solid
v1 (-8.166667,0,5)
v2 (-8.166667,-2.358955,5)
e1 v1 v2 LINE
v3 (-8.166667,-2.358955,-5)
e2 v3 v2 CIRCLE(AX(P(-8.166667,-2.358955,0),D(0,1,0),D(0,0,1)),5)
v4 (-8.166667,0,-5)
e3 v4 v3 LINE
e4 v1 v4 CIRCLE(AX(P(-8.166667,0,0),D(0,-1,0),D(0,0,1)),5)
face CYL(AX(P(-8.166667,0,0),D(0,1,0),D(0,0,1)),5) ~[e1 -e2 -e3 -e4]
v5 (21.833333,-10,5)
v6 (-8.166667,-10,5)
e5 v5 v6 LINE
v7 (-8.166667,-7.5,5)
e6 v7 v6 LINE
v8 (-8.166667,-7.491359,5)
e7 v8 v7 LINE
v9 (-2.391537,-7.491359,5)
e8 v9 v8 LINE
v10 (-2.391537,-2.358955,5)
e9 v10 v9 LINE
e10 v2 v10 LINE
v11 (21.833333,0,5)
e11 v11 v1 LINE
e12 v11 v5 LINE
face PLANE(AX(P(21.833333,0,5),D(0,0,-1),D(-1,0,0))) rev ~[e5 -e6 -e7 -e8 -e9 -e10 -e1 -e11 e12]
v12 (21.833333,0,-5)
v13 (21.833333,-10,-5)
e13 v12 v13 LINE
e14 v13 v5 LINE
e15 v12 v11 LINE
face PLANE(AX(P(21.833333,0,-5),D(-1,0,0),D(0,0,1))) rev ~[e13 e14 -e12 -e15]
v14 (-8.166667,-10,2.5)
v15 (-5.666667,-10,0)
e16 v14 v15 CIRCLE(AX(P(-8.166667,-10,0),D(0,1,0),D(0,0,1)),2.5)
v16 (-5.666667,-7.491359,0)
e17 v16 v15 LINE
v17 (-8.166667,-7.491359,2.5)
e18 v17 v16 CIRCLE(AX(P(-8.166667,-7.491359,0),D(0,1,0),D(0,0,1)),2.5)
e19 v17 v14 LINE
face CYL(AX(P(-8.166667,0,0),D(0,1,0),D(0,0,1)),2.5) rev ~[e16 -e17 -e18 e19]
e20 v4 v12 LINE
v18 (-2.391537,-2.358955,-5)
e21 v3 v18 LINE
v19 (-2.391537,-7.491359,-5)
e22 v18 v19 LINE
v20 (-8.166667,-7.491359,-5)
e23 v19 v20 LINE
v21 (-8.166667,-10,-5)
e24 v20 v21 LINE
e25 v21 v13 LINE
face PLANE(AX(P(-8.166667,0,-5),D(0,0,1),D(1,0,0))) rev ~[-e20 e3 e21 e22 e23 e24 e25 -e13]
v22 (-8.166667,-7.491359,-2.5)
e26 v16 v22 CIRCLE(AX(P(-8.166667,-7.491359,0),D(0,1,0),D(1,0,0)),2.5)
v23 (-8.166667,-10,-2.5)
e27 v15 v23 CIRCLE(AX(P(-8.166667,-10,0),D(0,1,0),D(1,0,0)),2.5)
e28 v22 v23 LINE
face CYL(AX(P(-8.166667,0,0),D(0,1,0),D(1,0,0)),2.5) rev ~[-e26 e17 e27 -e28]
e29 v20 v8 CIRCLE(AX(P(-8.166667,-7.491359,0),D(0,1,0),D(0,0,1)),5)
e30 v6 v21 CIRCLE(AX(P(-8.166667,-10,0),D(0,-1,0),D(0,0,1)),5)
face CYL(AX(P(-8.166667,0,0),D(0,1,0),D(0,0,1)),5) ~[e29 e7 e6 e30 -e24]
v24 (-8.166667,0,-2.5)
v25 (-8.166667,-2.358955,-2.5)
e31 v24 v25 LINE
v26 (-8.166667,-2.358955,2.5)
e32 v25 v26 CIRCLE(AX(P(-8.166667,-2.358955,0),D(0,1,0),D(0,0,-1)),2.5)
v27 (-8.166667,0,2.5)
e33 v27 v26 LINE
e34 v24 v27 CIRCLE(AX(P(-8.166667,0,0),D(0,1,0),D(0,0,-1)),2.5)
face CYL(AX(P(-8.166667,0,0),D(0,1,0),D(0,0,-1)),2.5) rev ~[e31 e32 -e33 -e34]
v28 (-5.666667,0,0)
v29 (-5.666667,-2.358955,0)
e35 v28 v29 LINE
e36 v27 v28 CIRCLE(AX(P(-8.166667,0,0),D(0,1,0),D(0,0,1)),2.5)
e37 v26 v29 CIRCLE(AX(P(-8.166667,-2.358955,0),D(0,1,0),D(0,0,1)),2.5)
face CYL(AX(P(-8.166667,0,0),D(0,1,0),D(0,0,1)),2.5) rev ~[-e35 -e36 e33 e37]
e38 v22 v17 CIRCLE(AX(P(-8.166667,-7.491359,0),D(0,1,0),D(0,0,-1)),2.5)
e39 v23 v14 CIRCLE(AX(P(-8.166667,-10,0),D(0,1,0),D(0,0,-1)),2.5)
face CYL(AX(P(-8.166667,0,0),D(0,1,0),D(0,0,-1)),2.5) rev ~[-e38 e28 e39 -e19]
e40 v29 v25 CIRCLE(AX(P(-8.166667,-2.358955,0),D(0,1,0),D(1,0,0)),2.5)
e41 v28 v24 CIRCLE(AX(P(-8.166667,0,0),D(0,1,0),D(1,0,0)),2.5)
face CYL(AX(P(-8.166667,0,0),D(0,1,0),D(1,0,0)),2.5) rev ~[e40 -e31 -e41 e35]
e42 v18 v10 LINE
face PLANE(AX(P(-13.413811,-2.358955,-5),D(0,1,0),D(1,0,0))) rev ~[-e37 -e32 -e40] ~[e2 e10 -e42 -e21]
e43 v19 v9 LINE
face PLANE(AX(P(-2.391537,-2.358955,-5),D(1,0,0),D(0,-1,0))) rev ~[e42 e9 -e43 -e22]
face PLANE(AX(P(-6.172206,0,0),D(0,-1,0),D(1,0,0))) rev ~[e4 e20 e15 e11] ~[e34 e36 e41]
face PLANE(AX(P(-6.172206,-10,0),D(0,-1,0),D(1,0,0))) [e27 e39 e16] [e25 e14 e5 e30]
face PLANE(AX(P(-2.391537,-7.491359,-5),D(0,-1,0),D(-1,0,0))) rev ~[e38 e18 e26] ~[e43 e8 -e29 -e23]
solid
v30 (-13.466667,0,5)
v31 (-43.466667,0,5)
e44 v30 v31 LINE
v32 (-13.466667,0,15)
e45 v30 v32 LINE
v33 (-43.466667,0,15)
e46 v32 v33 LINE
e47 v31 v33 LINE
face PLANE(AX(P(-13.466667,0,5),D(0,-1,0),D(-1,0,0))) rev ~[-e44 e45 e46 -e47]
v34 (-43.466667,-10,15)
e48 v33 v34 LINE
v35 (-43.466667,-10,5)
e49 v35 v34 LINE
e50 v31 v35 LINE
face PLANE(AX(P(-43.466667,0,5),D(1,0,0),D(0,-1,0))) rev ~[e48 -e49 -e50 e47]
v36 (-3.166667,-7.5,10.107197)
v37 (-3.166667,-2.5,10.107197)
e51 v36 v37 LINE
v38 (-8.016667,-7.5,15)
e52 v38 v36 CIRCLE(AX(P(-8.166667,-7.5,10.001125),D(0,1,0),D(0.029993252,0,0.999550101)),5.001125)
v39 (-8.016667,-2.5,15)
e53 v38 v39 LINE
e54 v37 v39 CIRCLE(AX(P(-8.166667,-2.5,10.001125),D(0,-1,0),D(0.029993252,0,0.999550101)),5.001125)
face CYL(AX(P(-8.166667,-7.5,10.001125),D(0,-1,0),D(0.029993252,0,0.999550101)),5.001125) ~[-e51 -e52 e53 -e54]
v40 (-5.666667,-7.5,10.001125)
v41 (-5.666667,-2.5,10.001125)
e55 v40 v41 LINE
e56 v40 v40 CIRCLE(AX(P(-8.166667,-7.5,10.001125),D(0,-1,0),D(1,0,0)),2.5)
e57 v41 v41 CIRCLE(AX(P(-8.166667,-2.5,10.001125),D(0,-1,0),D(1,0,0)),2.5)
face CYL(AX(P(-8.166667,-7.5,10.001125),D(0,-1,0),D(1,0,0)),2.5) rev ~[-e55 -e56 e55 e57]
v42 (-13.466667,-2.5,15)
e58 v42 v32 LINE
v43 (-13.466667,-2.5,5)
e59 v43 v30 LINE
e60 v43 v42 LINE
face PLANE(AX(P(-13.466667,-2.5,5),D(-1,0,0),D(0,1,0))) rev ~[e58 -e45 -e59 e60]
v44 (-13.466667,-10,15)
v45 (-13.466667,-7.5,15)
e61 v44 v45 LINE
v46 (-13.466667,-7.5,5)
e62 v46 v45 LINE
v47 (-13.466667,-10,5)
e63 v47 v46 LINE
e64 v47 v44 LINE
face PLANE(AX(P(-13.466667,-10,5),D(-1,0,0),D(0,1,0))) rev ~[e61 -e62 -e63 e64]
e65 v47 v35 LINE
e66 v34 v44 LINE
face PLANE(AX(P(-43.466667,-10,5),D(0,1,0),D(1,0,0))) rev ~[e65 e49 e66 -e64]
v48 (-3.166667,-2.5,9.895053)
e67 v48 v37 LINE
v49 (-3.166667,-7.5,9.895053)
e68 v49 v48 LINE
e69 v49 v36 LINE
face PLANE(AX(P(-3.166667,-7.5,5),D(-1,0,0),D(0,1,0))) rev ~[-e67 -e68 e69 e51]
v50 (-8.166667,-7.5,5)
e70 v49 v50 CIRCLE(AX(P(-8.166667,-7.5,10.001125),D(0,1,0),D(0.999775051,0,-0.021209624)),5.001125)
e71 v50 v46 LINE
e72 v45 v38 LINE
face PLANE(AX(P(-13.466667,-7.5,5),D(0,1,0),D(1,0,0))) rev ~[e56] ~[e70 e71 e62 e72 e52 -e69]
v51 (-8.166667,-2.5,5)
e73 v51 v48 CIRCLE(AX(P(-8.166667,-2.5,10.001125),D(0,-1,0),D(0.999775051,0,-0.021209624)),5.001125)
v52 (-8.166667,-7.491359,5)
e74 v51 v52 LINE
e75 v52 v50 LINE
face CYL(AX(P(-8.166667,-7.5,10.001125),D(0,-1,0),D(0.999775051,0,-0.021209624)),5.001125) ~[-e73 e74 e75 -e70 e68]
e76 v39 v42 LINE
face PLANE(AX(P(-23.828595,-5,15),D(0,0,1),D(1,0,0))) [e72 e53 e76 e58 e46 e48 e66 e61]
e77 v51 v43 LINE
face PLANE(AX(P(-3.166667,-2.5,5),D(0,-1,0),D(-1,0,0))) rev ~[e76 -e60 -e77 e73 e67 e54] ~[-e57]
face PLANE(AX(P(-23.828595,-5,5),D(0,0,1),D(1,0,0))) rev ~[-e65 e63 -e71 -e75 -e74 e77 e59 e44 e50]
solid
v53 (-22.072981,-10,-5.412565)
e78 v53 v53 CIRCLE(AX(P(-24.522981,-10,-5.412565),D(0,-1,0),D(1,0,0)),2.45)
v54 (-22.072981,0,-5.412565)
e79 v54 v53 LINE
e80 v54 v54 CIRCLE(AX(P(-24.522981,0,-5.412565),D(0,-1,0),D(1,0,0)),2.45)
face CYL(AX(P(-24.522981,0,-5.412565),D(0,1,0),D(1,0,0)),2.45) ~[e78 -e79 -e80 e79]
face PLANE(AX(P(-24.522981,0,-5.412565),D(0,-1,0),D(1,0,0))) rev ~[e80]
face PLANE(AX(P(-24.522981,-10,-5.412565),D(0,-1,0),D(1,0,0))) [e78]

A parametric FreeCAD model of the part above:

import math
import FreeCAD as App
import Part
import Sketcher

doc = App.newDocument("Part")
body = doc.addObject("PartDesign::Body", "Body")
body.AllowCompound = True

# Sketch on XZ plane
sketch1 = doc.addObject("Sketcher::SketchObject", "Sketch")
body.addObject(sketch1)
sketch1.AttachmentSupport = (doc.XZ_Plane, [""])
sketch1.MapMode = "FlatFace"
sketch1.addGeometry(Part.LineSegment(App.Vector(-8.166667, -5, 0), App.Vector(21.833333, -5, 0)), False)
sketch1.addGeometry(Part.LineSegment(App.Vector(21.833333, -5, 0), App.Vector(21.833333, 5, 0)), False)
sketch1.addGeometry(Part.LineSegment(App.Vector(21.833333, 5, 0), App.Vector(-8.166667, 5, 0)), False)
sketch1.addGeometry(Part.ArcOfCircle(Part.Circle(App.Vector(-8.166667, 0, 0), App.Vector(0, 0, 1), 5), math.radians(90), math.radians(270)), False)
sketch1.addGeometry(Part.ArcOfCircle(Part.Circle(App.Vector(-8.166667, 0, 0), App.Vector(0, 0, 1), 2.5), math.radians(0), math.radians(90)), False)
sketch1.addGeometry(Part.ArcOfCircle(Part.Circle(App.Vector(-8.166667, 0, 0), App.Vector(0, 0, 1), 2.5), math.radians(-90), math.radians(0)), False)
sketch1.addGeometry(Part.ArcOfCircle(Part.Circle(App.Vector(-8.166667, 0, 0), App.Vector(0, 0, 1), 2.5), math.radians(90), math.radians(270)), False)
sketch1.addConstraint(Sketcher.Constraint("Coincident", 0, 2, 1, 1))
sketch1.addConstraint(Sketcher.Constraint("Coincident", 1, 2, 2, 1))
sketch1.addConstraint(Sketcher.Constraint("Tangent", 2, 2, 3, 1))
sketch1.addConstraint(Sketcher.Constraint("Tangent", 3, 2, 0, 1))
sketch1.addConstraint(Sketcher.Constraint("Tangent", 4, 1, 5, 2))
sketch1.addConstraint(Sketcher.Constraint("Tangent", 5, 1, 6, 2))
sketch1.addConstraint(Sketcher.Constraint("Tangent", 6, 1, 4, 2))
sketch1.addConstraint(Sketcher.Constraint("Horizontal", 0))
sketch1.addConstraint(Sketcher.Constraint("Vertical", 1))
sketch1.addConstraint(Sketcher.Constraint("Horizontal", 2))
sketch1.addConstraint(Sketcher.Constraint("Coincident", 4, 3, 3, 3))
sketch1.addConstraint(Sketcher.Constraint("Symmetric", 5, 1, 6, 1, -1))
sketch1.addConstraint(Sketcher.Constraint("PointOnObject", 4, 1, -1))
sketch1.addConstraint(Sketcher.Constraint("Vertical", 3, 2, 5, 1))
sketch1.addConstraint(Sketcher.Constraint("Radius", 3, 5.0))
sketch1.addConstraint(Sketcher.Constraint("Radius", 4, 2.5))
sketch1.addConstraint(Sketcher.Constraint("DistanceX", 0, 1, 0, 2, 30.0))
sketch1.addConstraint(Sketcher.Constraint("DistanceX", 3, 3, -1, 1, 8.166667))
pad1 = doc.addObject("PartDesign::Pad", "Pad")
body.addObject(pad1)
pad1.Profile = sketch1
pad1.Length = 10

# Sketch on XY plane
sketch2 = doc.addObject("Sketcher::SketchObject", "Sketch001")
body.addObject(sketch2)
sketch2.AttachmentSupport = (doc.XY_Plane, [""])
sketch2.MapMode = "FlatFace"
sketch2.AttachmentOffset = App.Placement(App.Vector(0, 0, 5), App.Rotation())
sketch2.addGeometry(Part.LineSegment(App.Vector(-13.466667, -2.5, 0), App.Vector(-13.466667, 0, 0)), False)
sketch2.addGeometry(Part.LineSegment(App.Vector(-13.466667, 0, 0), App.Vector(-43.466667, 0, 0)), False)
sketch2.addGeometry(Part.LineSegment(App.Vector(-43.466667, 0, 0), App.Vector(-43.466667, -10, 0)), False)
sketch2.addGeometry(Part.LineSegment(App.Vector(-43.466667, -10, 0), App.Vector(-13.466667, -10, 0)), False)
sketch2.addGeometry(Part.LineSegment(App.Vector(-13.466667, -10, 0), App.Vector(-13.466667, -7.5, 0)), False)
sketch2.addGeometry(Part.LineSegment(App.Vector(-13.466667, -7.5, 0), App.Vector(-3.166667, -7.5, 0)), False)
sketch2.addGeometry(Part.LineSegment(App.Vector(-3.166667, -7.5, 0), App.Vector(-3.166667, -2.5, 0)), False)
sketch2.addGeometry(Part.LineSegment(App.Vector(-3.166667, -2.5, 0), App.Vector(-13.466667, -2.5, 0)), False)
sketch2.addConstraint(Sketcher.Constraint("Coincident", 0, 2, 1, 1))
sketch2.addConstraint(Sketcher.Constraint("Coincident", 1, 2, 2, 1))
sketch2.addConstraint(Sketcher.Constraint("Coincident", 2, 2, 3, 1))
sketch2.addConstraint(Sketcher.Constraint("Coincident", 3, 2, 4, 1))
sketch2.addConstraint(Sketcher.Constraint("Coincident", 4, 2, 5, 1))
sketch2.addConstraint(Sketcher.Constraint("Coincident", 5, 2, 6, 1))
sketch2.addConstraint(Sketcher.Constraint("Coincident", 6, 2, 7, 1))
sketch2.addConstraint(Sketcher.Constraint("Coincident", 7, 2, 0, 1))
sketch2.addConstraint(Sketcher.Constraint("Vertical", 0))
sketch2.addConstraint(Sketcher.Constraint("Horizontal", 1))
sketch2.addConstraint(Sketcher.Constraint("Vertical", 2))
sketch2.addConstraint(Sketcher.Constraint("Horizontal", 3))
sketch2.addConstraint(Sketcher.Constraint("Vertical", 4))
sketch2.addConstraint(Sketcher.Constraint("Horizontal", 5))
sketch2.addConstraint(Sketcher.Constraint("Vertical", 6))
sketch2.addConstraint(Sketcher.Constraint("Horizontal", 7))
sketch2.addConstraint(Sketcher.Constraint("PointOnObject", 0, 2, -1))
sketch2.addConstraint(Sketcher.Constraint("Vertical", 0, 2, 3, 2))
sketch2.addConstraint(Sketcher.Constraint("Equal", 0, 4))
sketch2.addConstraint(Sketcher.Constraint("DistanceX", 1, 2, 1, 1, 30.0))
sketch2.addConstraint(Sketcher.Constraint("DistanceY", 2, 2, 2, 1, 10.0))
sketch2.addConstraint(Sketcher.Constraint("DistanceY", 6, 1, 6, 2, 5.0))
sketch2.addConstraint(Sketcher.Constraint("DistanceX", 5, 1, 5, 2, 10.3))
sketch2.addConstraint(Sketcher.Constraint("DistanceX", 0, 2, -1, 1, 13.466667))
pad2 = doc.addObject("PartDesign::Pad", "Pad001")
body.addObject(pad2)
pad2.Profile = sketch2
pad2.Length = 10

# Sketch on XZ plane
sketch3 = doc.addObject("Sketcher::SketchObject", "Sketch002")
body.addObject(sketch3)
sketch3.AttachmentSupport = (doc.XZ_Plane, [""])
sketch3.MapMode = "FlatFace"
sketch3.AttachmentOffset = App.Placement(App.Vector(0, 0, 7.5), App.Rotation())
sketch3.addGeometry(Part.ArcOfCircle(Part.Circle(App.Vector(-8.166667, 10.001125, 0), App.Vector(0, 0, 1), 5.001125), math.radians(-90), math.radians(-1.215313)), False)
sketch3.addGeometry(Part.LineSegment(App.Vector(-8.166667, 5, 0), App.Vector(-3.166667, 5, 0)), False)
sketch3.addGeometry(Part.LineSegment(App.Vector(-3.166667, 5, 0), App.Vector(-3.166667, 9.895053, 0)), False)
sketch3.addGeometry(Part.ArcOfCircle(Part.Circle(App.Vector(-8.166667, 10.001125, 0), App.Vector(0, 0, 1), 5.001125), math.radians(1.215313), math.radians(88.281256)), False)
sketch3.addGeometry(Part.LineSegment(App.Vector(-3.166667, 10.107197, 0), App.Vector(-3.166667, 15, 0)), False)
sketch3.addGeometry(Part.LineSegment(App.Vector(-3.166667, 15, 0), App.Vector(-8.016667, 15, 0)), False)
sketch3.addConstraint(Sketcher.Constraint("Tangent", 0, 1, 1, 1))
sketch3.addConstraint(Sketcher.Constraint("Coincident", 1, 2, 2, 1))
sketch3.addConstraint(Sketcher.Constraint("Coincident", 2, 2, 0, 2))
sketch3.addConstraint(Sketcher.Constraint("Coincident", 3, 1, 4, 1))
sketch3.addConstraint(Sketcher.Constraint("Coincident", 4, 2, 5, 1))
sketch3.addConstraint(Sketcher.Constraint("Coincident", 5, 2, 3, 2))
sketch3.addConstraint(Sketcher.Constraint("Horizontal", 1))
sketch3.addConstraint(Sketcher.Constraint("Vertical", 2))
sketch3.addConstraint(Sketcher.Constraint("Vertical", 4))
sketch3.addConstraint(Sketcher.Constraint("Horizontal", 5))
sketch3.addConstraint(Sketcher.Constraint("Coincident", 3, 3, 0, 3))
sketch3.addConstraint(Sketcher.Constraint("Equal", 0, 3))
sketch3.addConstraint(Sketcher.Constraint("Vertical", 2, 2, 3, 1))
sketch3.addConstraint(Sketcher.Constraint("DistanceX", 1, 1, 1, 2, 5.0))
sketch3.addConstraint(Sketcher.Constraint("DistanceY", -1, 1, 0, 1, 5.0))
sketch3.addConstraint(Sketcher.Constraint("DistanceY", -1, 1, 4, 2, 15.0))
sketch3.addConstraint(Sketcher.Constraint("DistanceX", 5, 2, 5, 1, 4.85))
sketch3.addConstraint(Sketcher.Constraint("DistanceX", 0, 3, -1, 1, 8.166667))
pocket1 = doc.addObject("PartDesign::Pocket", "Pocket")
body.addObject(pocket1)
pocket1.Profile = sketch3
pocket1.Length = 10

# Sketch on XZ plane
sketch4 = doc.addObject("Sketcher::SketchObject", "Sketch003")
body.addObject(sketch4)
sketch4.AttachmentSupport = (doc.XZ_Plane, [""])
sketch4.MapMode = "FlatFace"
sketch4.AttachmentOffset = App.Placement(App.Vector(0, 0, 7.5), App.Rotation())
sketch4.addGeometry(Part.Circle(App.Vector(-8.166667, 10.001125, 0), App.Vector(0, 0, 1), 2.5), False)
sketch4.addConstraint(Sketcher.Constraint("Diameter", 0, 5.0))
sketch4.addConstraint(Sketcher.Constraint("DistanceX", 0, 3, -1, 1, 8.166667))
sketch4.addConstraint(Sketcher.Constraint("DistanceY", -1, 1, 0, 3, 10.001125))
pocket2 = doc.addObject("PartDesign::Pocket", "Pocket001")
body.addObject(pocket2)
pocket2.Profile = sketch4
pocket2.Length = 25

# Sketch on XY plane
sketch5 = doc.addObject("Sketcher::SketchObject", "Sketch004")
body.addObject(sketch5)
sketch5.AttachmentSupport = (doc.XY_Plane, [""])
sketch5.MapMode = "FlatFace"
sketch5.AttachmentOffset = App.Placement(App.Vector(0, 0, -5), App.Rotation())
sketch5.addGeometry(Part.LineSegment(App.Vector(-13.413811, -10.896843, 0), App.Vector(-2.391537, -10.896843, 0)), False)
sketch5.addGeometry(Part.LineSegment(App.Vector(-2.391537, -10.896843, 0), App.Vector(-2.391537, -14.167052, 0)), False)
sketch5.addGeometry(Part.LineSegment(App.Vector(-2.391537, -14.167052, 0), App.Vector(-16.214871, -14.167052, 0)), False)
sketch5.addGeometry(Part.LineSegment(App.Vector(-16.214871, -14.167052, 0), App.Vector(-16.214871, 4.023031, 0)), False)
sketch5.addGeometry(Part.LineSegment(App.Vector(-16.214871, 4.023031, 0), App.Vector(-2.391537, 4.023031, 0)), False)
sketch5.addGeometry(Part.LineSegment(App.Vector(-2.391537, 4.023031, 0), App.Vector(-2.391537, 2.477415, 0)), False)
sketch5.addGeometry(Part.LineSegment(App.Vector(-2.391537, 2.477415, 0), App.Vector(-13.413811, 2.477415, 0)), False)
sketch5.addGeometry(Part.LineSegment(App.Vector(-13.413811, 2.477415, 0), App.Vector(-13.413811, -2.358955, 0)), False)
sketch5.addGeometry(Part.LineSegment(App.Vector(-13.413811, -2.358955, 0), App.Vector(-2.391537, -2.358955, 0)), False)
sketch5.addGeometry(Part.LineSegment(App.Vector(-2.391537, -2.358955, 0), App.Vector(-2.391537, -7.491359, 0)), False)
sketch5.addGeometry(Part.LineSegment(App.Vector(-2.391537, -7.491359, 0), App.Vector(-13.413811, -7.491359, 0)), False)
sketch5.addGeometry(Part.LineSegment(App.Vector(-13.413811, -7.491359, 0), App.Vector(-13.413811, -10.896843, 0)), False)
sketch5.addConstraint(Sketcher.Constraint("Coincident", 0, 2, 1, 1))
sketch5.addConstraint(Sketcher.Constraint("Coincident", 1, 2, 2, 1))
sketch5.addConstraint(Sketcher.Constraint("Coincident", 2, 2, 3, 1))
sketch5.addConstraint(Sketcher.Constraint("Coincident", 3, 2, 4, 1))
sketch5.addConstraint(Sketcher.Constraint("Coincident", 4, 2, 5, 1))
sketch5.addConstraint(Sketcher.Constraint("Coincident", 5, 2, 6, 1))
sketch5.addConstraint(Sketcher.Constraint("Coincident", 6, 2, 7, 1))
sketch5.addConstraint(Sketcher.Constraint("Coincident", 7, 2, 8, 1))
sketch5.addConstraint(Sketcher.Constraint("Coincident", 8, 2, 9, 1))
sketch5.addConstraint(Sketcher.Constraint("Coincident", 9, 2, 10, 1))
sketch5.addConstraint(Sketcher.Constraint("Coincident", 10, 2, 11, 1))
sketch5.addConstraint(Sketcher.Constraint("Coincident", 11, 2, 0, 1))
sketch5.addConstraint(Sketcher.Constraint("Horizontal", 0))
sketch5.addConstraint(Sketcher.Constraint("Vertical", 1))
sketch5.addConstraint(Sketcher.Constraint("Horizontal", 2))
sketch5.addConstraint(Sketcher.Constraint("Vertical", 3))
sketch5.addConstraint(Sketcher.Constraint("Horizontal", 4))
sketch5.addConstraint(Sketcher.Constraint("Vertical", 5))
sketch5.addConstraint(Sketcher.Constraint("Horizontal", 6))
sketch5.addConstraint(Sketcher.Constraint("Vertical", 7))
sketch5.addConstraint(Sketcher.Constraint("Horizontal", 8))
sketch5.addConstraint(Sketcher.Constraint("Vertical", 9))
sketch5.addConstraint(Sketcher.Constraint("Horizontal", 10))
sketch5.addConstraint(Sketcher.Constraint("Vertical", 11))
sketch5.addConstraint(Sketcher.Constraint("Vertical", 1, 2, 4, 2))
sketch5.addConstraint(Sketcher.Constraint("Vertical", 5, 2, 8, 2))
sketch5.addConstraint(Sketcher.Constraint("Vertical", 7, 2, 10, 2))
sketch5.addConstraint(Sketcher.Constraint("DistanceY", 1, 2, 1, 1, 3.270209))
sketch5.addConstraint(Sketcher.Constraint("DistanceY", 7, 2, 7, 1, 4.83637))
sketch5.addConstraint(Sketcher.Constraint("DistanceX", 0, 1, 0, 2, 11.022274))
sketch5.addConstraint(Sketcher.Constraint("DistanceX", 2, 2, 2, 1, 13.823334))
sketch5.addConstraint(Sketcher.Constraint("DistanceY", 3, 1, 3, 2, 18.190083))
sketch5.addConstraint(Sketcher.Constraint("DistanceY", 5, 2, 5, 1, 1.545616))
sketch5.addConstraint(Sketcher.Constraint("DistanceY", 9, 2, 9, 1, 5.132404))
sketch5.addConstraint(Sketcher.Constraint("DistanceX", 2, 2, -1, 1, 16.214871))
sketch5.addConstraint(Sketcher.Constraint("DistanceY", -1, 1, 3, 2, 4.023031))
pocket3 = doc.addObject("PartDesign::Pocket", "Pocket002")
body.addObject(pocket3)
pocket3.Profile = sketch5
pocket3.Length = 10
pocket3.Reversed = True
body2 = doc.addObject("PartDesign::Body", "Body001")

# Sketch on XZ plane
sketch6 = doc.addObject("Sketcher::SketchObject", "Sketch005")
body2.addObject(sketch6)
sketch6.AttachmentSupport = (doc.getObject("XZ_Plane001"), [""])
sketch6.MapMode = "FlatFace"
sketch6.addGeometry(Part.Circle(App.Vector(-24.522981, -5.412565, 0), App.Vector(0, 0, 1), 2.45), False)
sketch6.addConstraint(Sketcher.Constraint("Diameter", 0, 4.9))
sketch6.addConstraint(Sketcher.Constraint("DistanceX", 0, 3, -1, 1, 24.522981))
sketch6.addConstraint(Sketcher.Constraint("DistanceY", 0, 3, -1, 1, 5.412565))
pad3 = doc.addObject("PartDesign::Pad", "Pad002")
body2.addObject(pad3)
pad3.Profile = sketch6
pad3.Length = 10

doc.recompute()
